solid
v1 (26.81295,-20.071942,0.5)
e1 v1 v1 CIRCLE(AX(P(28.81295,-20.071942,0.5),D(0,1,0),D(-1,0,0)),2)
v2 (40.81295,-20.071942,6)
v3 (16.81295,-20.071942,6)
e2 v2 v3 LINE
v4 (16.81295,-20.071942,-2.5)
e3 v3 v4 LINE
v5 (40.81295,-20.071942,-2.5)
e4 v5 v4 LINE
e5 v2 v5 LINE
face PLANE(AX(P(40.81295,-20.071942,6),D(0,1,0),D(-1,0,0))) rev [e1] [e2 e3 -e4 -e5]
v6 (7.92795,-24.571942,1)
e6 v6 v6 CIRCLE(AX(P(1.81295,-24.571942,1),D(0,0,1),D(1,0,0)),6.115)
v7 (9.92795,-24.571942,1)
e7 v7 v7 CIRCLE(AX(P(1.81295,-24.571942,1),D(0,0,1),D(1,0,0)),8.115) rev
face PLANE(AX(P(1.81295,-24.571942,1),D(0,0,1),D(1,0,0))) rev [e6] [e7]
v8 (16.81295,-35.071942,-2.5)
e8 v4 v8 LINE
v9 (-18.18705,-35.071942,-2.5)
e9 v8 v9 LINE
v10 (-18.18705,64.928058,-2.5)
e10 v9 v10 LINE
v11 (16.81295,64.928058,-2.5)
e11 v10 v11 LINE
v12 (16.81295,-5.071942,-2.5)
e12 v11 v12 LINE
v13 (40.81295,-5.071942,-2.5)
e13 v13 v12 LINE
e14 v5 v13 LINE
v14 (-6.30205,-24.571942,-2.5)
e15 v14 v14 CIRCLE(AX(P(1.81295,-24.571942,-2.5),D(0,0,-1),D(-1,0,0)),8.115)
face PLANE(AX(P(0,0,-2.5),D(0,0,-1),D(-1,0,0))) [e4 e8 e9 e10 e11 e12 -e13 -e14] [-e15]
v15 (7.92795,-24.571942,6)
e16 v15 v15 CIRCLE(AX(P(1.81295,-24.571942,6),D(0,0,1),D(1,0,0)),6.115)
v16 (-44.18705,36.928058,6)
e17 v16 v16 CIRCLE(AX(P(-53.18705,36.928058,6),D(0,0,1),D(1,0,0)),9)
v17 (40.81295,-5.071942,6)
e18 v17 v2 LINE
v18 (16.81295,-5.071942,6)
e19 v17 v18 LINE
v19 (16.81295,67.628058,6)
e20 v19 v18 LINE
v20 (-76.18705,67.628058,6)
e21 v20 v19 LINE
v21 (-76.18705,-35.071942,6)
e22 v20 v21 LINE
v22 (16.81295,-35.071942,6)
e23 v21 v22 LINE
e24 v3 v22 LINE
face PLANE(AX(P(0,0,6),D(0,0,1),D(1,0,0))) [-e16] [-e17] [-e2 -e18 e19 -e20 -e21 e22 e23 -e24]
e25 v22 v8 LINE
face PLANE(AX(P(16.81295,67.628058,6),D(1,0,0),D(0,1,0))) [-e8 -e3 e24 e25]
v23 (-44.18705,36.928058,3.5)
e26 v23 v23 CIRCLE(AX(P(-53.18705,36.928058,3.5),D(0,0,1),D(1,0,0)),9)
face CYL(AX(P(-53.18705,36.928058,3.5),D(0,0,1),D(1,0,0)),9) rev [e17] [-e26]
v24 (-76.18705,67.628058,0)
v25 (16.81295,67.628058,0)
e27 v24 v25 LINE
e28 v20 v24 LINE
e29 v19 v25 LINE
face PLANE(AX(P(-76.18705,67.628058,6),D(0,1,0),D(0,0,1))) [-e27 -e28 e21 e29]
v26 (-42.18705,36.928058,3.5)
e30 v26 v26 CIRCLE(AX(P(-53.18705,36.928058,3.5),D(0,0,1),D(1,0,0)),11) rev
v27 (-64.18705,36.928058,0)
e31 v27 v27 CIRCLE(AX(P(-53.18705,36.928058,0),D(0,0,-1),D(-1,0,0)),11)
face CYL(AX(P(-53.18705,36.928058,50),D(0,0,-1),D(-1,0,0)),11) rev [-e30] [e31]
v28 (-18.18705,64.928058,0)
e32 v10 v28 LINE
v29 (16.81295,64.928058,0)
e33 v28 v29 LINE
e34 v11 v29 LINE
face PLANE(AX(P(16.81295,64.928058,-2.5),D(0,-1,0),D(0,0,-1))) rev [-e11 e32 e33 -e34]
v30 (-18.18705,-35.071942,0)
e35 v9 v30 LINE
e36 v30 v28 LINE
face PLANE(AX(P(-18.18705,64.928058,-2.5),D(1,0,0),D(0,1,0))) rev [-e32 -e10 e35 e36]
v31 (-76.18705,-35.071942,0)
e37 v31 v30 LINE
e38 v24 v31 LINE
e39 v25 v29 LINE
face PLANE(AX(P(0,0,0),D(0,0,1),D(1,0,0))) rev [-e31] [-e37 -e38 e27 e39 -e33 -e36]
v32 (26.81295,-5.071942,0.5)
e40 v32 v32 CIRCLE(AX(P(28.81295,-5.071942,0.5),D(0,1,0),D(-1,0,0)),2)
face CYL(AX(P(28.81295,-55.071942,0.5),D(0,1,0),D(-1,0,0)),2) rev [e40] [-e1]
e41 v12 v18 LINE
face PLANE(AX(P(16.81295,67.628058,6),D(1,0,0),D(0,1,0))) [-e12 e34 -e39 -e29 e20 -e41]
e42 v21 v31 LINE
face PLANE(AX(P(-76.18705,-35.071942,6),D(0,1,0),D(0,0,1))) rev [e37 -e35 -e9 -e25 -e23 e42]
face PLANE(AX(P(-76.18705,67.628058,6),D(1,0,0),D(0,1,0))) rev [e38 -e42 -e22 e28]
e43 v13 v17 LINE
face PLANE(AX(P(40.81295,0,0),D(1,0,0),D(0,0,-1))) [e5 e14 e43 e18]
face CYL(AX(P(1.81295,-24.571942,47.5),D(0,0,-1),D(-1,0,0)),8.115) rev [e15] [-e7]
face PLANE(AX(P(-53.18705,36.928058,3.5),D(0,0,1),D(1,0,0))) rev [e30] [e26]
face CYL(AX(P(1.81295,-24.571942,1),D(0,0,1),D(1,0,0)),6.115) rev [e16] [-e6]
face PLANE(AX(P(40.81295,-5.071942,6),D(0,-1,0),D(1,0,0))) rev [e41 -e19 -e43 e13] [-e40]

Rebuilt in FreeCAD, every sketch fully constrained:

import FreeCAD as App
import Part
import Sketcher

doc = App.newDocument("Part")
params = doc.addObject("Spreadsheet::Sheet", "Params")
for row, (alias, value) in enumerate([
    ("sketch1_width", "93 mm"),
    ("sketch1_height", "102.7 mm"),
    ("pad1_length", "6 mm"),
    ("sketch2_width", "35 mm"),
    ("sketch2_height", "100 mm"),
    ("pad2_length", "2.5 mm"),
    ("sketch3_width", "15 mm"),
    ("sketch3_height", "8.5 mm"),
    ("pad3_length", "24 mm"),
    ("sketch4_diameter", "4 mm"),
    ("pocket1_length", "50 mm"),
    ("sketch5_diameter", "16.23 mm"),
    ("pocket2_length", "50 mm"),
    ("sketch6_diameter", "22 mm"),
    ("pocket3_length", "50 mm"),
    ("sketch7_diameter", "22 mm"),
    ("sketch7_diameter2", "18 mm"),
    ("pad4_length", "2.5 mm"),
    ("sketch8_diameter", "16.23 mm"),
    ("sketch8_diameter2", "12.23 mm"),
    ("pad5_length", "5 mm"),
], start=1):
    params.set(f"A{row}", alias)
    params.set(f"B{row}", "=" + value)
    params.setAlias(f"B{row}", alias)

body = doc.addObject("PartDesign::Body", "Body")

# Sketch on XY plane
sketch1 = body.newObject("Sketcher::SketchObject", "Sketch")
sketch1.AttachmentSupport = (doc.getObject("XY_Plane"), [""])
sketch1.MapMode = "FlatFace"
sketch1.addGeometry([
    Part.LineSegment(App.Vector(-76.18705, 67.628058, 0), App.Vector(-76.18705, -35.071942, 0)),
    Part.LineSegment(App.Vector(-76.18705, -35.071942, 0), App.Vector(16.81295, -35.071942, 0)),
    Part.LineSegment(App.Vector(16.81295, -35.071942, 0), App.Vector(16.81295, 67.628058, 0)),
    Part.LineSegment(App.Vector(16.81295, 67.628058, 0), App.Vector(-76.18705, 67.628058, 0)),
], False)
sketch1.addConstraint([
    Sketcher.Constraint("Coincident", 0, 2, 1, 1),
    Sketcher.Constraint("Coincident", 1, 2, 2, 1),
    Sketcher.Constraint("Coincident", 2, 2, 3, 1),
    Sketcher.Constraint("Coincident", 3, 2, 0, 1),
    Sketcher.Constraint("Vertical", 0),
    Sketcher.Constraint("Horizontal", 1),
    Sketcher.Constraint("Vertical", 2),
    Sketcher.Constraint("Horizontal", 3),
    Sketcher.Constraint("DistanceX", 1, 1, 1, 2, 93.0),
    Sketcher.Constraint("DistanceY", 0, 2, 0, 1, 102.7),
    Sketcher.Constraint("DistanceX", 0, 2, -1, 1, 76.18705),
    Sketcher.Constraint("DistanceY", 0, 2, -1, 1, 35.071942),
])
sketch1.setExpression("Constraints[8]", "Params.sketch1_width")
sketch1.setExpression("Constraints[9]", "Params.sketch1_height")
pad1 = body.newObject("PartDesign::Pad", "Pad")
pad1.Profile = sketch1
pad1.setExpression("Length", "Params.pad1_length")

# Sketch on XY plane
sketch2 = body.newObject("Sketcher::SketchObject", "Sketch001")
sketch2.AttachmentSupport = (doc.getObject("XY_Plane"), [""])
sketch2.MapMode = "FlatFace"
sketch2.addGeometry([
    Part.LineSegment(App.Vector(16.81295, 64.928058, 0), App.Vector(16.81295, -35.071942, 0)),
    Part.LineSegment(App.Vector(16.81295, -35.071942, 0), App.Vector(-18.18705, -35.071942, 0)),
    Part.LineSegment(App.Vector(-18.18705, -35.071942, 0), App.Vector(-18.18705, 64.928058, 0)),
    Part.LineSegment(App.Vector(-18.18705, 64.928058, 0), App.Vector(16.81295, 64.928058, 0)),
], False)
sketch2.addConstraint([
    Sketcher.Constraint("Coincident", 0, 2, 1, 1),
    Sketcher.Constraint("Coincident", 1, 2, 2, 1),
    Sketcher.Constraint("Coincident", 2, 2, 3, 1),
    Sketcher.Constraint("Coincident", 3, 2, 0, 1),
    Sketcher.Constraint("Vertical", 0),
    Sketcher.Constraint("Horizontal", 1),
    Sketcher.Constraint("Vertical", 2),
    Sketcher.Constraint("Horizontal", 3),
    Sketcher.Constraint("DistanceX", 1, 2, 1, 1, 35.0),
    Sketcher.Constraint("DistanceY", 0, 2, 0, 1, 100.0),
    Sketcher.Constraint("DistanceX", -1, 1, 0, 2, 16.81295),
    Sketcher.Constraint("DistanceY", 0, 2, -1, 1, 35.071942),
])
sketch2.setExpression("Constraints[8]", "Params.sketch2_width")
sketch2.setExpression("Constraints[9]", "Params.sketch2_height")
pad2 = body.newObject("PartDesign::Pad", "Pad001")
pad2.Profile = sketch2
pad2.setExpression("Length", "Params.pad2_length")
pad2.Reversed = True

# Sketch on YZ plane
sketch3 = body.newObject("Sketcher::SketchObject", "Sketch002")
sketch3.AttachmentSupport = (doc.getObject("YZ_Plane"), [""])
sketch3.MapMode = "FlatFace"
sketch3.AttachmentOffset = App.Placement(App.Vector(0, 0, 16.81295), App.Rotation())
sketch3.addGeometry([
    Part.LineSegment(App.Vector(-5.071942, 6, 0), App.Vector(-20.071942, 6, 0)),
    Part.LineSegment(App.Vector(-20.071942, 6, 0), App.Vector(-20.071942, -2.5, 0)),
    Part.LineSegment(App.Vector(-20.071942, -2.5, 0), App.Vector(-5.071942, -2.5, 0)),
    Part.LineSegment(App.Vector(-5.071942, -2.5, 0), App.Vector(-5.071942, 6, 0)),
], False)
sketch3.addConstraint([
    Sketcher.Constraint("Coincident", 0, 2, 1, 1),
    Sketcher.Constraint("Coincident", 1, 2, 2, 1),
    Sketcher.Constraint("Coincident", 2, 2, 3, 1),
    Sketcher.Constraint("Coincident", 3, 2, 0, 1),
    Sketcher.Constraint("Horizontal", 0),
    Sketcher.Constraint("Vertical", 1),
    Sketcher.Constraint("Horizontal", 2),
    Sketcher.Constraint("Vertical", 3),
    Sketcher.Constraint("DistanceX", 0, 2, 0, 1, 15.0),
    Sketcher.Constraint("DistanceY", 1, 2, 1, 1, 8.5),
    Sketcher.Constraint("DistanceY", -1, 1, 0, 2, 6.0),
    Sketcher.Constraint("DistanceX", 0, 2, -1, 1, 20.071942),
])
sketch3.setExpression("Constraints[8]", "Params.sketch3_width")
sketch3.setExpression("Constraints[9]", "Params.sketch3_height")
pad3 = body.newObject("PartDesign::Pad", "Pad002")
pad3.Profile = sketch3
pad3.setExpression("Length", "Params.pad3_length")

# Sketch on XZ plane
sketch4 = body.newObject("Sketcher::SketchObject", "Sketch003")
sketch4.AttachmentSupport = (doc.getObject("XZ_Plane"), [""])
sketch4.MapMode = "FlatFace"
sketch4.AttachmentOffset = App.Placement(App.Vector(0, 0, 5.071942), App.Rotation())
sketch4.addGeometry(Part.Circle(App.Vector(28.81295, 0.5, 0), App.Vector(0, 0, 1), 2), False)
sketch4.addConstraint([
    Sketcher.Constraint("Diameter", 0, 4.0),
    Sketcher.Constraint("DistanceY", -1, 1, 0, 3, 0.5),
    Sketcher.Constraint("DistanceX", -1, 1, 0, 3, 28.81295),
])
sketch4.setExpression("Constraints[0]", "Params.sketch4_diameter")
pocket1 = body.newObject("PartDesign::Pocket", "Pocket")
pocket1.Profile = sketch4
pocket1.setExpression("Length", "Params.pocket1_length")
pocket1.Reversed = True

# Sketch on XY plane
sketch5 = body.newObject("Sketcher::SketchObject", "Sketch004")
sketch5.AttachmentSupport = (doc.getObject("XY_Plane"), [""])
sketch5.MapMode = "FlatFace"
sketch5.AttachmentOffset = App.Placement(App.Vector(0, 0, -2.5), App.Rotation())
sketch5.addGeometry(Part.Circle(App.Vector(1.81295, -24.571942, 0), App.Vector(0, 0, 1), 8.115), False)
sketch5.addConstraint([
    Sketcher.Constraint("Diameter", 0, 16.23),
    Sketcher.Constraint("DistanceX", -1, 1, 0, 3, 1.81295),
    Sketcher.Constraint("DistanceY", 0, 3, -1, 1, 24.571942),
])
sketch5.setExpression("Constraints[0]", "Params.sketch5_diameter")
pocket2 = body.newObject("PartDesign::Pocket", "Pocket001")
pocket2.Profile = sketch5
pocket2.setExpression("Length", "Params.pocket2_length")
pocket2.Reversed = True

# Sketch on XY plane
sketch6 = body.newObject("Sketcher::SketchObject", "Sketch005")
sketch6.AttachmentSupport = (doc.getObject("XY_Plane"), [""])
sketch6.MapMode = "FlatFace"
sketch6.addGeometry(Part.Circle(App.Vector(-53.18705, 36.928058, 0), App.Vector(0, 0, 1), 11), False)
sketch6.addConstraint([
    Sketcher.Constraint("Diameter", 0, 22.0),
    Sketcher.Constraint("DistanceX", 0, 3, -1, 1, 53.18705),
    Sketcher.Constraint("DistanceY", -1, 1, 0, 3, 36.928058),
])
sketch6.setExpression("Constraints[0]", "Params.sketch6_diameter")
pocket3 = body.newObject("PartDesign::Pocket", "Pocket002")
pocket3.Profile = sketch6
pocket3.setExpression("Length", "Params.pocket3_length")
pocket3.Reversed = True

# Sketch on XY plane
sketch7 = body.newObject("Sketcher::SketchObject", "Sketch006")
sketch7.AttachmentSupport = (doc.getObject("XY_Plane"), [""])
sketch7.MapMode = "FlatFace"
sketch7.AttachmentOffset = App.Placement(App.Vector(0, 0, 3.5), App.Rotation())
sketch7.addGeometry([
    Part.Circle(App.Vector(-53.18705, 36.928058, 0), App.Vector(0, 0, 1), 11),
    Part.Circle(App.Vector(-53.18705, 36.928058, 0), App.Vector(0, 0, 1), 9),
], False)
sketch7.addConstraint([
    Sketcher.Constraint("Coincident", 1, 3, 0, 3),
    Sketcher.Constraint("Diameter", 0, 22.0),
    Sketcher.Constraint("Diameter", 1, 18.0),
    Sketcher.Constraint("DistanceX", 0, 3, -1, 1, 53.18705),
    Sketcher.Constraint("DistanceY", -1, 1, 0, 3, 36.928058),
])
sketch7.setExpression("Constraints[1]", "Params.sketch7_diameter")
sketch7.setExpression("Constraints[2]", "Params.sketch7_diameter2")
pad4 = body.newObject("PartDesign::Pad", "Pad003")
pad4.Profile = sketch7
pad4.setExpression("Length", "Params.pad4_length")

# Sketch on XY plane
sketch8 = body.newObject("Sketcher::SketchObject", "Sketch007")
sketch8.AttachmentSupport = (doc.getObject("XY_Plane"), [""])
sketch8.MapMode = "FlatFace"
sketch8.AttachmentOffset = App.Placement(App.Vector(0, 0, 1), App.Rotation())
sketch8.addGeometry([
    Part.Circle(App.Vector(1.81295, -24.571942, 0), App.Vector(0, 0, 1), 8.115),
    Part.Circle(App.Vector(1.81295, -24.571942, 0), App.Vector(0, 0, 1), 6.115),
], False)
sketch8.addConstraint([
    Sketcher.Constraint("Coincident", 1, 3, 0, 3),
    Sketcher.Constraint("Diameter", 0, 16.23),
    Sketcher.Constraint("Diameter", 1, 12.23),
    Sketcher.Constraint("DistanceX", -1, 1, 0, 3, 1.81295),
    Sketcher.Constraint("DistanceY", 0, 3, -1, 1, 24.571942),
])
sketch8.setExpression("Constraints[1]", "Params.sketch8_diameter")
sketch8.setExpression("Constraints[2]", "Params.sketch8_diameter2")
pad5 = body.newObject("PartDesign::Pad", "Pad004")
pad5.Profile = sketch8
pad5.setExpression("Length", "Params.pad5_length")

doc.recompute()
